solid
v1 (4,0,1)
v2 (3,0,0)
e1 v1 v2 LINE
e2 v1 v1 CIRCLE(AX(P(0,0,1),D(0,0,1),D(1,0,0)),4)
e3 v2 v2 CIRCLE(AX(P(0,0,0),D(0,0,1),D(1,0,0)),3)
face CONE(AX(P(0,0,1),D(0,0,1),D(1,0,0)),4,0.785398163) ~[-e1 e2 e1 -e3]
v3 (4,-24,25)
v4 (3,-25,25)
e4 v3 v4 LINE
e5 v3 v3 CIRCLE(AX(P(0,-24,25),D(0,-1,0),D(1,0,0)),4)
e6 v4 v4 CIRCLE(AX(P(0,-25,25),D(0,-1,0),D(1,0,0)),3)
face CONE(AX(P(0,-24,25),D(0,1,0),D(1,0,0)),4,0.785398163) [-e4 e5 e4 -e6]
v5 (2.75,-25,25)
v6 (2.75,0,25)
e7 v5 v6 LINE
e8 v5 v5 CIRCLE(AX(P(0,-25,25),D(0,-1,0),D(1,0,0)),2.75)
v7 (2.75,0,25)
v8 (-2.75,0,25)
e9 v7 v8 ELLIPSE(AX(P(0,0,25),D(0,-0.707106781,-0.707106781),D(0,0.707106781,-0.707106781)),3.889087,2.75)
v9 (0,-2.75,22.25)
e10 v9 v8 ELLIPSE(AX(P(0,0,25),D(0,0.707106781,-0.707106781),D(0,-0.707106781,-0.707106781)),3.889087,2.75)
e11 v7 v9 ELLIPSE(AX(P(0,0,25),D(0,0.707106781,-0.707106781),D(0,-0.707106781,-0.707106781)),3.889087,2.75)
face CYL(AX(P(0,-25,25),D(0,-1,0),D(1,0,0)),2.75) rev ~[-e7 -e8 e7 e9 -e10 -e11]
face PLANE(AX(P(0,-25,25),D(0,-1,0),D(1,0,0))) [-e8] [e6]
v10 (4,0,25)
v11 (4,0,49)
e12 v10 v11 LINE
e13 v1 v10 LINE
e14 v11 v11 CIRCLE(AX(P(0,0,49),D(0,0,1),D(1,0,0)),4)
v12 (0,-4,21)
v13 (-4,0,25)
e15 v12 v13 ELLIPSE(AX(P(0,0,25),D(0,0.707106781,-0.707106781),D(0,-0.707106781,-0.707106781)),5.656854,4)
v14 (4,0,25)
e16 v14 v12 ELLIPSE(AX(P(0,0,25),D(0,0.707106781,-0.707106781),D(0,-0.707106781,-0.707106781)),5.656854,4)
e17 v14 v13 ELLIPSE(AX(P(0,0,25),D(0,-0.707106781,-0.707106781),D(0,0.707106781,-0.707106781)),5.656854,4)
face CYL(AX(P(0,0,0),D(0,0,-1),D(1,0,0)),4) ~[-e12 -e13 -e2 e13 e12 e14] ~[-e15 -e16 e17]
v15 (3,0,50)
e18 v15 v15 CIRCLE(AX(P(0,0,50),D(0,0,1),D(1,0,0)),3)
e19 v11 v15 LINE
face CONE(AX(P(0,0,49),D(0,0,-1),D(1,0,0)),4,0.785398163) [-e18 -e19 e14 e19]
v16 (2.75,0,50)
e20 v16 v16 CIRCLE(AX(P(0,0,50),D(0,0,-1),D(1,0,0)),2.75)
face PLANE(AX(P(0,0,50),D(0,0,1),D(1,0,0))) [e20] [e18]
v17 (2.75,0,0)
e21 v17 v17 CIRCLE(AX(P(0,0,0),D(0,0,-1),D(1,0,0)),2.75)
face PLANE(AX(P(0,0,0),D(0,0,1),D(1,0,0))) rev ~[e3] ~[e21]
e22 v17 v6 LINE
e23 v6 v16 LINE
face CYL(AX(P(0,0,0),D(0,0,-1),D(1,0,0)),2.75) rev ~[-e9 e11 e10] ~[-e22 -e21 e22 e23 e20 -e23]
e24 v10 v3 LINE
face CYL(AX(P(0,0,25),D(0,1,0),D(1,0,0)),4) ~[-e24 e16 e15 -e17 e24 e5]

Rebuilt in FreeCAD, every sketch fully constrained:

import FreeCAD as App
import Part
import Sketcher

V = App.Vector
Q = App.Units.Quantity


def edges_at(feature, points):
    """Names of the edges that pass closest to the given points."""
    edges = feature.Shape.Edges
    near = lambda p: min(range(len(edges)), key=lambda i: edges[i].distToShape(Part.Vertex(*p))[0])
    return sorted({f"Edge{near(p) + 1}" for p in points})

doc = App.newDocument("Part")
params = doc.addObject("Spreadsheet::Sheet", "Params")
for row, (alias, value) in enumerate([
    ("sketch1_diameter", "8 mm"),
    ("pad1_length", "50 mm"),
    ("sketch2_diameter", "8 mm"),
    ("pad2_length", "25 mm"),
    ("sketch3_diameter", "5.5 mm"),
    ("sketch4_diameter", "5.5 mm"),
    ("pocket2_length", "25 mm"),
    ("chamfer_size", "1 mm"),
], start=1):
    params.set(f"A{row}", alias)
    params.set(f"B{row}", "=" + value)
    params.setAlias(f"B{row}", alias)

body = doc.addObject("PartDesign::Body", "Body")

sketch1 = body.newObject("Sketcher::SketchObject", "Sketch")
sketch1.AttachmentSupport = (doc.getObject("XY_Plane"), [""])
sketch1.MapMode = "FlatFace"
sketch1.addGeometry(Part.Circle(V(0, 0, 0), V(0, 0, 1), 4), False)
sketch1.addConstraint([
    Sketcher.Constraint("Coincident", 0, 3, -1, 1),
    Sketcher.Constraint("Diameter", 0, Q("8 mm")),
])
sketch1.setExpression("Constraints[1]", "Params.sketch1_diameter")
pad1 = body.newObject("PartDesign::Pad", "Pad")
pad1.Profile = sketch1
pad1.setExpression("Length", "Params.pad1_length")

sketch2 = body.newObject("Sketcher::SketchObject", "Sketch001")
sketch2.AttachmentSupport = (doc.getObject("XZ_Plane"), [""])
sketch2.MapMode = "FlatFace"
sketch2.addGeometry(Part.Circle(V(0, 25, 0), V(0, 0, 1), 4), False)
sketch2.addConstraint([
    Sketcher.Constraint("PointOnObject", 0, 3, -2),
    Sketcher.Constraint("Diameter", 0, Q("8 mm")),
    Sketcher.Constraint("DistanceY", -1, 1, 0, 3, Q("25 mm")),
])
sketch2.setExpression("Constraints[1]", "Params.sketch2_diameter")
pad2 = body.newObject("PartDesign::Pad", "Pad001")
pad2.Profile = sketch2
pad2.setExpression("Length", "Params.pad2_length")

sketch3 = body.newObject("Sketcher::SketchObject", "Sketch002")
sketch3.AttachmentSupport = (doc.getObject("XY_Plane"), [""])
sketch3.MapMode = "FlatFace"
sketch3.addGeometry(Part.Circle(V(0, 0, 0), V(0, 0, 1), 2.8), False)
sketch3.addConstraint([
    Sketcher.Constraint("Coincident", 0, 3, -1, 1),
    Sketcher.Constraint("Diameter", 0, Q("5.5 mm")),
])
sketch3.setExpression("Constraints[1]", "Params.sketch3_diameter")
pocket1 = body.newObject("PartDesign::Pocket", "Pocket")
pocket1.Profile = sketch3
pocket1.Type = "ThroughAll"
pocket1.Reversed = True

sketch4 = body.newObject("Sketcher::SketchObject", "Sketch003")
sketch4.AttachmentSupport = (doc.getObject("XZ_Plane"), [""])
sketch4.MapMode = "FlatFace"
sketch4.AttachmentOffset = App.Placement(V(0, 0, 25), App.Rotation())
sketch4.addGeometry(Part.Circle(V(0, 25, 0), V(0, 0, 1), 2.8), False)
sketch4.addConstraint([
    Sketcher.Constraint("PointOnObject", 0, 3, -2),
    Sketcher.Constraint("Diameter", 0, Q("5.5 mm")),
    Sketcher.Constraint("DistanceY", -1, 1, 0, 3, Q("25 mm")),
])
sketch4.setExpression("Constraints[1]", "Params.sketch4_diameter")
pocket2 = body.newObject("PartDesign::Pocket", "Pocket001")
pocket2.Profile = sketch4
pocket2.setExpression("Length", "Params.pocket2_length")
doc.recompute()

chamfer = body.newObject("PartDesign::Chamfer", "Chamfer")
chamfer.Base = (pocket2, edges_at(pocket2, [(-4, 0, 0), (-4, -25, 25), (-4, 0, 50)]))
chamfer.setExpression("Size", "Params.chamfer_size")

doc.recompute()
